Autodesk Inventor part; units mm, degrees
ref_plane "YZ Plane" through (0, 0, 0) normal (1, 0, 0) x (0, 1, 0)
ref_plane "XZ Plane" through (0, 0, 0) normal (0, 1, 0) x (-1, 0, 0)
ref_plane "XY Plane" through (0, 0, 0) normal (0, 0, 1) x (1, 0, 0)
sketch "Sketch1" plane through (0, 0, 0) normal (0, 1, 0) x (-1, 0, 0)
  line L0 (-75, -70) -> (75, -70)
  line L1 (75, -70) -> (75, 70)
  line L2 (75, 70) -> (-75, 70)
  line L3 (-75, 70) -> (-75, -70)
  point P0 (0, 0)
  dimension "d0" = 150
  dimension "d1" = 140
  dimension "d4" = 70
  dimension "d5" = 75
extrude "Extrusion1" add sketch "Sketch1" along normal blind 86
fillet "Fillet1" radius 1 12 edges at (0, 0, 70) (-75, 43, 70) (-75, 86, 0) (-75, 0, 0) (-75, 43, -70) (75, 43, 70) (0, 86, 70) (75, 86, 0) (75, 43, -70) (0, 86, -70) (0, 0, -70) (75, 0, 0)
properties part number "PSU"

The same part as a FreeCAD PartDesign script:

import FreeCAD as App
import Part
import Sketcher

V = App.Vector


def add_polygon(sketch, points):
    """Adds a closed chain of lines whose ends are joined by coincident constraints."""
    first, n = sketch.GeometryCount, len(points)
    for a, b in zip(points, points[1:] + points[:1]):
        sketch.addGeometry(Part.LineSegment(App.Vector(*a, 0), App.Vector(*b, 0)), False)
    for i in range(n):
        sketch.addConstraint(Sketcher.Constraint("Coincident", first + i, 2, first + (i + 1) % n, 1))

doc = App.newDocument("Part")
body = doc.addObject("PartDesign::Body", "Body")

# Sketch on XZ plane
sketch1 = body.newObject("Sketcher::SketchObject", "Sketch")
sketch1.AttachmentSupport = (doc.getObject("XZ_Plane"), [""])
sketch1.MapMode = "FlatFace"
add_polygon(sketch1, [(75, 70), (75, -70), (-75, -70), (-75, 70)])  # lines 0-3
sketch1.addConstraint(Sketcher.Constraint("Vertical", 0))
sketch1.addConstraint(Sketcher.Constraint("Horizontal", 1))
sketch1.addConstraint(Sketcher.Constraint("Vertical", 2))
sketch1.addConstraint(Sketcher.Constraint("Horizontal", 3))
sketch1.addConstraint(Sketcher.Constraint("Symmetric", 0, 2, 2, 2, -1, 1))
sketch1.addConstraint(Sketcher.Constraint("DistanceX", 1, 2, 1, 1, 150.0))
sketch1.addConstraint(Sketcher.Constraint("DistanceY", 0, 2, 0, 1, 140.0))
pad1 = body.newObject("PartDesign::Pad", "Pad")
pad1.Profile = sketch1
pad1.Length = 86
pad1.Reversed = True
doc.recompute()

fillet = body.newObject("PartDesign::Fillet", "Fillet")
fillet.Base = (pad1, ["Edge1"])
fillet.UseAllEdges = True
fillet.Radius = 1

doc.recompute()
